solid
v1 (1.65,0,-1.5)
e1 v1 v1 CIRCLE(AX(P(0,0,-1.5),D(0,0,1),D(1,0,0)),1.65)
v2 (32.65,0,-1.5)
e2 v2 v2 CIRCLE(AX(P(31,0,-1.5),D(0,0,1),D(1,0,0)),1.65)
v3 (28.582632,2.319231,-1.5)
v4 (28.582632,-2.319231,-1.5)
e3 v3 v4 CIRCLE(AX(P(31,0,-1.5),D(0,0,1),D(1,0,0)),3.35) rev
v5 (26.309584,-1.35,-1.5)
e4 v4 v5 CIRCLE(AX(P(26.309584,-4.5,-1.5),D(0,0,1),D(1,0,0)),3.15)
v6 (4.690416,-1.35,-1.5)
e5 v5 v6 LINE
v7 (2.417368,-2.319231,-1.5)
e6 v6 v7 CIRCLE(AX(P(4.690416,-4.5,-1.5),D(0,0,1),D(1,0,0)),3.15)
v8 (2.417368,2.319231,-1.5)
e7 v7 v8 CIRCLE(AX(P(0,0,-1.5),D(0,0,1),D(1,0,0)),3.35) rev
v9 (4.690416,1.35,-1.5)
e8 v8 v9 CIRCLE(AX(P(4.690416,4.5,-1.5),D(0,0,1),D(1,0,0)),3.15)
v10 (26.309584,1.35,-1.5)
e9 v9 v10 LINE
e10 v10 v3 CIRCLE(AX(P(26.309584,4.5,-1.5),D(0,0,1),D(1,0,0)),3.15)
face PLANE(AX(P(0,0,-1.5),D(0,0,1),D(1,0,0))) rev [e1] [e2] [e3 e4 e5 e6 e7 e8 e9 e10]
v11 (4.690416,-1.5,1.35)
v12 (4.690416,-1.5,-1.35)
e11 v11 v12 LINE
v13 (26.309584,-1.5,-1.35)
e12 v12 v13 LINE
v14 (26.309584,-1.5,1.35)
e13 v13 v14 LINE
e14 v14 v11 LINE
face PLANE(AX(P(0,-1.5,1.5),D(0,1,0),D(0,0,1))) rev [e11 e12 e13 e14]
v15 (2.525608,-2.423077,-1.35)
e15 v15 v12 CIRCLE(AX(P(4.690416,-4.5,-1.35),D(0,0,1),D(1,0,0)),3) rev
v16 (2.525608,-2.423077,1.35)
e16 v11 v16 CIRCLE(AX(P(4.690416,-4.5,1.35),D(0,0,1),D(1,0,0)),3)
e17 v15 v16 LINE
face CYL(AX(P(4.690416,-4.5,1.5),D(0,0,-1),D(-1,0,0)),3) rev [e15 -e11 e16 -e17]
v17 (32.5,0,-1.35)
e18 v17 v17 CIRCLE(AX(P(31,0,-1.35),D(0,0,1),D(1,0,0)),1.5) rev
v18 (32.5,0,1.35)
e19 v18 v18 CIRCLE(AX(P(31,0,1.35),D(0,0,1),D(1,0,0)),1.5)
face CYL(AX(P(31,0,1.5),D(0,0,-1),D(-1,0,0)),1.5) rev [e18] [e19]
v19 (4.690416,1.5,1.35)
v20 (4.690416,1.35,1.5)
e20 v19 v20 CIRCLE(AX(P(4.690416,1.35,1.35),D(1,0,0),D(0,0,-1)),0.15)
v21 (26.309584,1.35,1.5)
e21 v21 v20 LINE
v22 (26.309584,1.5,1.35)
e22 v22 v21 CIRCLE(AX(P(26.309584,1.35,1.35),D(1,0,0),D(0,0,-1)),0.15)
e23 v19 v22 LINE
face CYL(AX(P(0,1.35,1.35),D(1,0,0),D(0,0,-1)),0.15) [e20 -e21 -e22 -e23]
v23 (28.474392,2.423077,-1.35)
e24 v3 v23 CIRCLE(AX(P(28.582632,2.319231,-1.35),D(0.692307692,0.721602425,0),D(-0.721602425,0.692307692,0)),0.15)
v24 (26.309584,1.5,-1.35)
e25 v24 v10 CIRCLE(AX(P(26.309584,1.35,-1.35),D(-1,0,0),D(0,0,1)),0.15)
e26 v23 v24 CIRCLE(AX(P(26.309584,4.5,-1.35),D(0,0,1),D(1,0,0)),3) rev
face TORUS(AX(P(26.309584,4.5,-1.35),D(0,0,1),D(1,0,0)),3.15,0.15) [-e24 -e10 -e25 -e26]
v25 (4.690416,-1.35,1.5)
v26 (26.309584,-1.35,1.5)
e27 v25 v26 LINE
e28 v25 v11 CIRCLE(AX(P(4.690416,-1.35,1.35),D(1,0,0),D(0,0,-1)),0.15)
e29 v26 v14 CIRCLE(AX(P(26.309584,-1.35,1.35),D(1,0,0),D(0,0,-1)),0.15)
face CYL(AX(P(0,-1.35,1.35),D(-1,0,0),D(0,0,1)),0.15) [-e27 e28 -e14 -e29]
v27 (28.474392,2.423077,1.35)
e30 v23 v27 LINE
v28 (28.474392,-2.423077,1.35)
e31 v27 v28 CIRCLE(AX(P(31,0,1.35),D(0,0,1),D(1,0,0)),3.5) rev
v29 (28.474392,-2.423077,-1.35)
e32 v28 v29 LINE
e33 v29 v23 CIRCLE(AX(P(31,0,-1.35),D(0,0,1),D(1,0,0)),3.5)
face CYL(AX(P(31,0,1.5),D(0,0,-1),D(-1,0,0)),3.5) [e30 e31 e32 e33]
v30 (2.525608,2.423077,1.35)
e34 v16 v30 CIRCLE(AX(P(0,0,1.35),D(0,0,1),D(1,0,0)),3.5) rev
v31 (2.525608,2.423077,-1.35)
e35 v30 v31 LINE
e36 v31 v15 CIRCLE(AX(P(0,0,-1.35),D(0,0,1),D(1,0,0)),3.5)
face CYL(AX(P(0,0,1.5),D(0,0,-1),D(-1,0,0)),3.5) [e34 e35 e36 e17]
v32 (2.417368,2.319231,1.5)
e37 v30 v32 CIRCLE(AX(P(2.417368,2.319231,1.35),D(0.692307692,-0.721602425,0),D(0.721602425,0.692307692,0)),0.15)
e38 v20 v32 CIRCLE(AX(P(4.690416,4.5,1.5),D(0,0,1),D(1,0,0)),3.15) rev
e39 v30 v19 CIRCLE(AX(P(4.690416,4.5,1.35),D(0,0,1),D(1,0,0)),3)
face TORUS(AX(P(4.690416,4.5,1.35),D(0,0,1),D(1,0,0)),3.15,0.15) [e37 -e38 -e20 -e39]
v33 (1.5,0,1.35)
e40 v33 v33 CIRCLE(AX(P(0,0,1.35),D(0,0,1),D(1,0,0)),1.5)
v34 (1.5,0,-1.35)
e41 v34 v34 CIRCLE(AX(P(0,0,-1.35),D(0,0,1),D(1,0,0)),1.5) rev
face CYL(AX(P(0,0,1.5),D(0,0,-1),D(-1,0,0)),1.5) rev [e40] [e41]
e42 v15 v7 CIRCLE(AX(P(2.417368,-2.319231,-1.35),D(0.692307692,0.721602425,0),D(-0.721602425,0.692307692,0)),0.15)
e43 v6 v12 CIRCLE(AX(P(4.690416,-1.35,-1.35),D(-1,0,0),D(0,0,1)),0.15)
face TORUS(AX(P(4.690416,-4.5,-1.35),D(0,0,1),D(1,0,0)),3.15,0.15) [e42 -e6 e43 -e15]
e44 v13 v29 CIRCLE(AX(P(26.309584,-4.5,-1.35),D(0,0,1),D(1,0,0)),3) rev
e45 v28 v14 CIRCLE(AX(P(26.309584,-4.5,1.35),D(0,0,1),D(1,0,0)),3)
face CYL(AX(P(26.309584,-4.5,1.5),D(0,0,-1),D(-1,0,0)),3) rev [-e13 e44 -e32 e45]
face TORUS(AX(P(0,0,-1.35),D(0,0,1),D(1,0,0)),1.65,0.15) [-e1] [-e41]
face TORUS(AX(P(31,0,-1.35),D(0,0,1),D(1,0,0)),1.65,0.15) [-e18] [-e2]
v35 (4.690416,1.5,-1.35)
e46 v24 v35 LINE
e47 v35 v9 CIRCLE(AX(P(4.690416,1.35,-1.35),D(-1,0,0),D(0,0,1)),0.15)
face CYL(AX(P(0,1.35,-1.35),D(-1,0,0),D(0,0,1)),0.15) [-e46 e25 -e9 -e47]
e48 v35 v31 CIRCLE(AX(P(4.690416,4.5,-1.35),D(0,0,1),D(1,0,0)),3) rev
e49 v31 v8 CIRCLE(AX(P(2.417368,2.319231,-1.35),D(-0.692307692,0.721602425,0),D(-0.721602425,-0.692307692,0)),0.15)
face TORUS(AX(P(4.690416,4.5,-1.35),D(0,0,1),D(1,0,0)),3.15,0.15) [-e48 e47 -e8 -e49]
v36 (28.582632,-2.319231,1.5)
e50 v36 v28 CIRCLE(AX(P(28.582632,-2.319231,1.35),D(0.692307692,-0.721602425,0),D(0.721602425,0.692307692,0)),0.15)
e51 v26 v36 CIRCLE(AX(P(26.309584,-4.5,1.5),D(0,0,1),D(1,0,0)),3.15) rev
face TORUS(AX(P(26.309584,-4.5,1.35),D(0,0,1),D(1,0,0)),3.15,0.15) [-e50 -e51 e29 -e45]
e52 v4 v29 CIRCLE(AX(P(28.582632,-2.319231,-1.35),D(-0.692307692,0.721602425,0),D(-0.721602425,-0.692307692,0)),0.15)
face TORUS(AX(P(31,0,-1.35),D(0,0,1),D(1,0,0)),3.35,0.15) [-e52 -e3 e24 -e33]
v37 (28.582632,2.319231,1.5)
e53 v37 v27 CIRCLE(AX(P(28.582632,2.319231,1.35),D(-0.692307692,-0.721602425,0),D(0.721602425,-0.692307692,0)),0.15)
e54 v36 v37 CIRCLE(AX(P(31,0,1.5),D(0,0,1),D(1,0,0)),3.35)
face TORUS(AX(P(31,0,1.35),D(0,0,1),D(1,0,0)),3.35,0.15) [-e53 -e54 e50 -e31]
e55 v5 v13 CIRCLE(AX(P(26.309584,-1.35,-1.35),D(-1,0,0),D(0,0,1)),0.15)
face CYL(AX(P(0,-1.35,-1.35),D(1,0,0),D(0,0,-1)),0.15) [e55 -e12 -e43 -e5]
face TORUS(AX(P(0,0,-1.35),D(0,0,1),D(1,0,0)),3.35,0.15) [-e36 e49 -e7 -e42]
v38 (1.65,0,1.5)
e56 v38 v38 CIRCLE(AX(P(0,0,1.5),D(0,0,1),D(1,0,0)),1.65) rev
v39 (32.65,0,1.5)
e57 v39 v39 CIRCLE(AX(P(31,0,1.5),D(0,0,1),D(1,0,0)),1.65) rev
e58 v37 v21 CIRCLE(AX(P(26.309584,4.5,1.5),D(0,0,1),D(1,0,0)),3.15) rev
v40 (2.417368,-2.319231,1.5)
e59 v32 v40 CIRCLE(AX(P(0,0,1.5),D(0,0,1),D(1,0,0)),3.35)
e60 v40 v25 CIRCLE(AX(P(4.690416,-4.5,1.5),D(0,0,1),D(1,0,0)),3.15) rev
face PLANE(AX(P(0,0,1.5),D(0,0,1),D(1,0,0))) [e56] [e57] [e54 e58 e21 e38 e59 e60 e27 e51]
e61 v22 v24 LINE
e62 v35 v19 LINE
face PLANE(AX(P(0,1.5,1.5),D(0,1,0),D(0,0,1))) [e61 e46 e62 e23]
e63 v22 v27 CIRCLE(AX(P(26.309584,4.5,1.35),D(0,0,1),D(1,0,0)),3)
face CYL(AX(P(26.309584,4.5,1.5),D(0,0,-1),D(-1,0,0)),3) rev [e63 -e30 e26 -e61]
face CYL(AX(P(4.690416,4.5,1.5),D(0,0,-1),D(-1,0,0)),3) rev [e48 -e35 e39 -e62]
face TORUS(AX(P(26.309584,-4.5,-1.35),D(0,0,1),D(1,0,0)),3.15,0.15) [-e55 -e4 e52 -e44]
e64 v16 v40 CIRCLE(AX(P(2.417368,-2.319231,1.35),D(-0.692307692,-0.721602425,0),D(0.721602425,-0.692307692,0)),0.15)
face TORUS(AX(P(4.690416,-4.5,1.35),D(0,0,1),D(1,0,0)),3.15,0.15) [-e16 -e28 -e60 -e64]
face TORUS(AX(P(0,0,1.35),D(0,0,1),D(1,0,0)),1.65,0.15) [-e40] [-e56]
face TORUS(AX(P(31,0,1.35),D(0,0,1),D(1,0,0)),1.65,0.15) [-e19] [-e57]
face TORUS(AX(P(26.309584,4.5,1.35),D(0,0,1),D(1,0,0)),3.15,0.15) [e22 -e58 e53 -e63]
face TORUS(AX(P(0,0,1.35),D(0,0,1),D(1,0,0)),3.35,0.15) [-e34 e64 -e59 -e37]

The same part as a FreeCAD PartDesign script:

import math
import FreeCAD as App
import Part
import Sketcher
from FreeCAD import Vector
Q = App.Units.Quantity


def edges_at(feature, points):
    """Names of the edges that pass closest to the given points."""
    edges = feature.Shape.Edges
    near = lambda p: min(range(len(edges)), key=lambda i: edges[i].distToShape(Part.Vertex(*p))[0])
    return sorted({f"Edge{near(p) + 1}" for p in points})

doc = App.newDocument("Part")
params = doc.addObject("Spreadsheet::Sheet", "Params")
for row, (alias, value) in enumerate([
    ("sketch1_diameter", "3 mm"),
    ("sketch1_radius", "3.5 mm"),
    ("pad1_length", "3 mm"),
    ("fillet_radius", "3 mm"),
    ("fillet2_radius", "0.15 mm"),
], start=1):
    params.set(f"A{row}", alias)
    params.set(f"B{row}", "=" + value)
    params.setAlias(f"B{row}", alias)

body = doc.addObject("PartDesign::Body", "Body")

# Sketch on XY plane
sketch1 = doc.addObject("Sketcher::SketchObject", "Sketch")
body.addObject(sketch1)
sketch1.AttachmentSupport = (doc.XY_Plane, [""])
sketch1.MapMode = "FlatFace"
sketch1.addGeometry(Part.ArcOfCircle(Part.Circle(Vector(0, 0, 0), Vector(0, 0, 1), 3.5), math.radians(25), math.radians(335)), False)
sketch1.addGeometry(Part.LineSegment(Vector(3.2, -1.5, 0), Vector(27.8, -1.5, 0)), False)
sketch1.addGeometry(Part.ArcOfCircle(Part.Circle(Vector(31, 0, 0), Vector(0, 0, 1), 3.5), math.radians(-155), math.radians(155)), False)
sketch1.addGeometry(Part.LineSegment(Vector(27.8, 1.5, 0), Vector(3.2, 1.5, 0)), False)
sketch1.addGeometry(Part.Circle(Vector(0, 0, 0), Vector(0, 0, 1), 1.5), False)
sketch1.addGeometry(Part.Circle(Vector(31, 0, 0), Vector(0, 0, 1), 1.5), False)
sketch1.addConstraint(Sketcher.Constraint("Coincident", 0, 2, 1, 1))
sketch1.addConstraint(Sketcher.Constraint("Coincident", 1, 2, 2, 1))
sketch1.addConstraint(Sketcher.Constraint("Coincident", 2, 2, 3, 1))
sketch1.addConstraint(Sketcher.Constraint("Coincident", 3, 2, 0, 1))
sketch1.addConstraint(Sketcher.Constraint("Horizontal", 1))
sketch1.addConstraint(Sketcher.Constraint("Horizontal", 3))
sketch1.addConstraint(Sketcher.Constraint("Coincident", 0, 3, -1, 1))
sketch1.addConstraint(Sketcher.Constraint("Coincident", 4, 3, -1, 1))
sketch1.addConstraint(Sketcher.Constraint("Coincident", 5, 3, 2, 3))
sketch1.addConstraint(Sketcher.Constraint("Equal", 0, 2))
sketch1.addConstraint(Sketcher.Constraint("Equal", 4, 5))
sketch1.addConstraint(Sketcher.Constraint("Symmetric", 1, 2, 2, 2, -1))
sketch1.addConstraint(Sketcher.Constraint("Diameter", 4, Q("3 mm")))
sketch1.addConstraint(Sketcher.Constraint("Radius", 0, Q("3.5 mm")))
sketch1.addConstraint(Sketcher.Constraint("DistanceX", -1, 1, 2, 3, Q("31 mm")))
sketch1.addConstraint(Sketcher.Constraint("DistanceY", 1, 2, 2, 2, Q("3 mm")))
sketch1.setExpression("Constraints[12]", "Params.sketch1_diameter")
sketch1.setExpression("Constraints[13]", "Params.sketch1_radius")
pad1 = doc.addObject("PartDesign::Pad", "Pad")
body.addObject(pad1)
pad1.Profile = sketch1
pad1.setExpression("Length", "Params.pad1_length")
pad1.Midplane = True
doc.recompute()

fillet = doc.addObject("PartDesign::Fillet", "Fillet")
body.addObject(fillet)
fillet.Base = (pad1, edges_at(pad1, [
    (27.838, 1.5, 0),
    (27.838, -1.5, 0),
    (3.162, -1.5, 0),
    (3.162, 1.5, 0),
]))
fillet.setExpression("Radius", "Params.fillet_radius")
doc.recompute()

fillet2 = doc.addObject("PartDesign::Fillet", "Fillet001")
body.addObject(fillet2)
fillet2.Base = (fillet, edges_at(fillet, [
    (15.5, -1.5, -1.5),
    (15.5, -1.5, 1.5),
    (-1.5, 0, 1.5),
    (-3.5, 0, -1.5),
    (-3.5, 0, 1.5),
    (34.5, 0, -1.5),
    (34.5, 0, 1.5),
    (29.5, 0, 1.5),
    (15.5, 1.5, -1.5),
    (15.5, 1.5, 1.5),
    (3.514, -1.74, -1.5),
    (3.514, -1.74, 1.5),
    (27.486, -1.74, -1.5),
    (27.486, -1.74, 1.5),
    (27.486, 1.74, -1.5),
    (27.486, 1.74, 1.5),
    (3.514, 1.74, -1.5),
    (3.514, 1.74, 1.5),
    (29.5, 0, -1.5),
    (-1.5, 0, -1.5),
]))
fillet2.setExpression("Radius", "Params.fillet2_radius")

doc.recompute()
